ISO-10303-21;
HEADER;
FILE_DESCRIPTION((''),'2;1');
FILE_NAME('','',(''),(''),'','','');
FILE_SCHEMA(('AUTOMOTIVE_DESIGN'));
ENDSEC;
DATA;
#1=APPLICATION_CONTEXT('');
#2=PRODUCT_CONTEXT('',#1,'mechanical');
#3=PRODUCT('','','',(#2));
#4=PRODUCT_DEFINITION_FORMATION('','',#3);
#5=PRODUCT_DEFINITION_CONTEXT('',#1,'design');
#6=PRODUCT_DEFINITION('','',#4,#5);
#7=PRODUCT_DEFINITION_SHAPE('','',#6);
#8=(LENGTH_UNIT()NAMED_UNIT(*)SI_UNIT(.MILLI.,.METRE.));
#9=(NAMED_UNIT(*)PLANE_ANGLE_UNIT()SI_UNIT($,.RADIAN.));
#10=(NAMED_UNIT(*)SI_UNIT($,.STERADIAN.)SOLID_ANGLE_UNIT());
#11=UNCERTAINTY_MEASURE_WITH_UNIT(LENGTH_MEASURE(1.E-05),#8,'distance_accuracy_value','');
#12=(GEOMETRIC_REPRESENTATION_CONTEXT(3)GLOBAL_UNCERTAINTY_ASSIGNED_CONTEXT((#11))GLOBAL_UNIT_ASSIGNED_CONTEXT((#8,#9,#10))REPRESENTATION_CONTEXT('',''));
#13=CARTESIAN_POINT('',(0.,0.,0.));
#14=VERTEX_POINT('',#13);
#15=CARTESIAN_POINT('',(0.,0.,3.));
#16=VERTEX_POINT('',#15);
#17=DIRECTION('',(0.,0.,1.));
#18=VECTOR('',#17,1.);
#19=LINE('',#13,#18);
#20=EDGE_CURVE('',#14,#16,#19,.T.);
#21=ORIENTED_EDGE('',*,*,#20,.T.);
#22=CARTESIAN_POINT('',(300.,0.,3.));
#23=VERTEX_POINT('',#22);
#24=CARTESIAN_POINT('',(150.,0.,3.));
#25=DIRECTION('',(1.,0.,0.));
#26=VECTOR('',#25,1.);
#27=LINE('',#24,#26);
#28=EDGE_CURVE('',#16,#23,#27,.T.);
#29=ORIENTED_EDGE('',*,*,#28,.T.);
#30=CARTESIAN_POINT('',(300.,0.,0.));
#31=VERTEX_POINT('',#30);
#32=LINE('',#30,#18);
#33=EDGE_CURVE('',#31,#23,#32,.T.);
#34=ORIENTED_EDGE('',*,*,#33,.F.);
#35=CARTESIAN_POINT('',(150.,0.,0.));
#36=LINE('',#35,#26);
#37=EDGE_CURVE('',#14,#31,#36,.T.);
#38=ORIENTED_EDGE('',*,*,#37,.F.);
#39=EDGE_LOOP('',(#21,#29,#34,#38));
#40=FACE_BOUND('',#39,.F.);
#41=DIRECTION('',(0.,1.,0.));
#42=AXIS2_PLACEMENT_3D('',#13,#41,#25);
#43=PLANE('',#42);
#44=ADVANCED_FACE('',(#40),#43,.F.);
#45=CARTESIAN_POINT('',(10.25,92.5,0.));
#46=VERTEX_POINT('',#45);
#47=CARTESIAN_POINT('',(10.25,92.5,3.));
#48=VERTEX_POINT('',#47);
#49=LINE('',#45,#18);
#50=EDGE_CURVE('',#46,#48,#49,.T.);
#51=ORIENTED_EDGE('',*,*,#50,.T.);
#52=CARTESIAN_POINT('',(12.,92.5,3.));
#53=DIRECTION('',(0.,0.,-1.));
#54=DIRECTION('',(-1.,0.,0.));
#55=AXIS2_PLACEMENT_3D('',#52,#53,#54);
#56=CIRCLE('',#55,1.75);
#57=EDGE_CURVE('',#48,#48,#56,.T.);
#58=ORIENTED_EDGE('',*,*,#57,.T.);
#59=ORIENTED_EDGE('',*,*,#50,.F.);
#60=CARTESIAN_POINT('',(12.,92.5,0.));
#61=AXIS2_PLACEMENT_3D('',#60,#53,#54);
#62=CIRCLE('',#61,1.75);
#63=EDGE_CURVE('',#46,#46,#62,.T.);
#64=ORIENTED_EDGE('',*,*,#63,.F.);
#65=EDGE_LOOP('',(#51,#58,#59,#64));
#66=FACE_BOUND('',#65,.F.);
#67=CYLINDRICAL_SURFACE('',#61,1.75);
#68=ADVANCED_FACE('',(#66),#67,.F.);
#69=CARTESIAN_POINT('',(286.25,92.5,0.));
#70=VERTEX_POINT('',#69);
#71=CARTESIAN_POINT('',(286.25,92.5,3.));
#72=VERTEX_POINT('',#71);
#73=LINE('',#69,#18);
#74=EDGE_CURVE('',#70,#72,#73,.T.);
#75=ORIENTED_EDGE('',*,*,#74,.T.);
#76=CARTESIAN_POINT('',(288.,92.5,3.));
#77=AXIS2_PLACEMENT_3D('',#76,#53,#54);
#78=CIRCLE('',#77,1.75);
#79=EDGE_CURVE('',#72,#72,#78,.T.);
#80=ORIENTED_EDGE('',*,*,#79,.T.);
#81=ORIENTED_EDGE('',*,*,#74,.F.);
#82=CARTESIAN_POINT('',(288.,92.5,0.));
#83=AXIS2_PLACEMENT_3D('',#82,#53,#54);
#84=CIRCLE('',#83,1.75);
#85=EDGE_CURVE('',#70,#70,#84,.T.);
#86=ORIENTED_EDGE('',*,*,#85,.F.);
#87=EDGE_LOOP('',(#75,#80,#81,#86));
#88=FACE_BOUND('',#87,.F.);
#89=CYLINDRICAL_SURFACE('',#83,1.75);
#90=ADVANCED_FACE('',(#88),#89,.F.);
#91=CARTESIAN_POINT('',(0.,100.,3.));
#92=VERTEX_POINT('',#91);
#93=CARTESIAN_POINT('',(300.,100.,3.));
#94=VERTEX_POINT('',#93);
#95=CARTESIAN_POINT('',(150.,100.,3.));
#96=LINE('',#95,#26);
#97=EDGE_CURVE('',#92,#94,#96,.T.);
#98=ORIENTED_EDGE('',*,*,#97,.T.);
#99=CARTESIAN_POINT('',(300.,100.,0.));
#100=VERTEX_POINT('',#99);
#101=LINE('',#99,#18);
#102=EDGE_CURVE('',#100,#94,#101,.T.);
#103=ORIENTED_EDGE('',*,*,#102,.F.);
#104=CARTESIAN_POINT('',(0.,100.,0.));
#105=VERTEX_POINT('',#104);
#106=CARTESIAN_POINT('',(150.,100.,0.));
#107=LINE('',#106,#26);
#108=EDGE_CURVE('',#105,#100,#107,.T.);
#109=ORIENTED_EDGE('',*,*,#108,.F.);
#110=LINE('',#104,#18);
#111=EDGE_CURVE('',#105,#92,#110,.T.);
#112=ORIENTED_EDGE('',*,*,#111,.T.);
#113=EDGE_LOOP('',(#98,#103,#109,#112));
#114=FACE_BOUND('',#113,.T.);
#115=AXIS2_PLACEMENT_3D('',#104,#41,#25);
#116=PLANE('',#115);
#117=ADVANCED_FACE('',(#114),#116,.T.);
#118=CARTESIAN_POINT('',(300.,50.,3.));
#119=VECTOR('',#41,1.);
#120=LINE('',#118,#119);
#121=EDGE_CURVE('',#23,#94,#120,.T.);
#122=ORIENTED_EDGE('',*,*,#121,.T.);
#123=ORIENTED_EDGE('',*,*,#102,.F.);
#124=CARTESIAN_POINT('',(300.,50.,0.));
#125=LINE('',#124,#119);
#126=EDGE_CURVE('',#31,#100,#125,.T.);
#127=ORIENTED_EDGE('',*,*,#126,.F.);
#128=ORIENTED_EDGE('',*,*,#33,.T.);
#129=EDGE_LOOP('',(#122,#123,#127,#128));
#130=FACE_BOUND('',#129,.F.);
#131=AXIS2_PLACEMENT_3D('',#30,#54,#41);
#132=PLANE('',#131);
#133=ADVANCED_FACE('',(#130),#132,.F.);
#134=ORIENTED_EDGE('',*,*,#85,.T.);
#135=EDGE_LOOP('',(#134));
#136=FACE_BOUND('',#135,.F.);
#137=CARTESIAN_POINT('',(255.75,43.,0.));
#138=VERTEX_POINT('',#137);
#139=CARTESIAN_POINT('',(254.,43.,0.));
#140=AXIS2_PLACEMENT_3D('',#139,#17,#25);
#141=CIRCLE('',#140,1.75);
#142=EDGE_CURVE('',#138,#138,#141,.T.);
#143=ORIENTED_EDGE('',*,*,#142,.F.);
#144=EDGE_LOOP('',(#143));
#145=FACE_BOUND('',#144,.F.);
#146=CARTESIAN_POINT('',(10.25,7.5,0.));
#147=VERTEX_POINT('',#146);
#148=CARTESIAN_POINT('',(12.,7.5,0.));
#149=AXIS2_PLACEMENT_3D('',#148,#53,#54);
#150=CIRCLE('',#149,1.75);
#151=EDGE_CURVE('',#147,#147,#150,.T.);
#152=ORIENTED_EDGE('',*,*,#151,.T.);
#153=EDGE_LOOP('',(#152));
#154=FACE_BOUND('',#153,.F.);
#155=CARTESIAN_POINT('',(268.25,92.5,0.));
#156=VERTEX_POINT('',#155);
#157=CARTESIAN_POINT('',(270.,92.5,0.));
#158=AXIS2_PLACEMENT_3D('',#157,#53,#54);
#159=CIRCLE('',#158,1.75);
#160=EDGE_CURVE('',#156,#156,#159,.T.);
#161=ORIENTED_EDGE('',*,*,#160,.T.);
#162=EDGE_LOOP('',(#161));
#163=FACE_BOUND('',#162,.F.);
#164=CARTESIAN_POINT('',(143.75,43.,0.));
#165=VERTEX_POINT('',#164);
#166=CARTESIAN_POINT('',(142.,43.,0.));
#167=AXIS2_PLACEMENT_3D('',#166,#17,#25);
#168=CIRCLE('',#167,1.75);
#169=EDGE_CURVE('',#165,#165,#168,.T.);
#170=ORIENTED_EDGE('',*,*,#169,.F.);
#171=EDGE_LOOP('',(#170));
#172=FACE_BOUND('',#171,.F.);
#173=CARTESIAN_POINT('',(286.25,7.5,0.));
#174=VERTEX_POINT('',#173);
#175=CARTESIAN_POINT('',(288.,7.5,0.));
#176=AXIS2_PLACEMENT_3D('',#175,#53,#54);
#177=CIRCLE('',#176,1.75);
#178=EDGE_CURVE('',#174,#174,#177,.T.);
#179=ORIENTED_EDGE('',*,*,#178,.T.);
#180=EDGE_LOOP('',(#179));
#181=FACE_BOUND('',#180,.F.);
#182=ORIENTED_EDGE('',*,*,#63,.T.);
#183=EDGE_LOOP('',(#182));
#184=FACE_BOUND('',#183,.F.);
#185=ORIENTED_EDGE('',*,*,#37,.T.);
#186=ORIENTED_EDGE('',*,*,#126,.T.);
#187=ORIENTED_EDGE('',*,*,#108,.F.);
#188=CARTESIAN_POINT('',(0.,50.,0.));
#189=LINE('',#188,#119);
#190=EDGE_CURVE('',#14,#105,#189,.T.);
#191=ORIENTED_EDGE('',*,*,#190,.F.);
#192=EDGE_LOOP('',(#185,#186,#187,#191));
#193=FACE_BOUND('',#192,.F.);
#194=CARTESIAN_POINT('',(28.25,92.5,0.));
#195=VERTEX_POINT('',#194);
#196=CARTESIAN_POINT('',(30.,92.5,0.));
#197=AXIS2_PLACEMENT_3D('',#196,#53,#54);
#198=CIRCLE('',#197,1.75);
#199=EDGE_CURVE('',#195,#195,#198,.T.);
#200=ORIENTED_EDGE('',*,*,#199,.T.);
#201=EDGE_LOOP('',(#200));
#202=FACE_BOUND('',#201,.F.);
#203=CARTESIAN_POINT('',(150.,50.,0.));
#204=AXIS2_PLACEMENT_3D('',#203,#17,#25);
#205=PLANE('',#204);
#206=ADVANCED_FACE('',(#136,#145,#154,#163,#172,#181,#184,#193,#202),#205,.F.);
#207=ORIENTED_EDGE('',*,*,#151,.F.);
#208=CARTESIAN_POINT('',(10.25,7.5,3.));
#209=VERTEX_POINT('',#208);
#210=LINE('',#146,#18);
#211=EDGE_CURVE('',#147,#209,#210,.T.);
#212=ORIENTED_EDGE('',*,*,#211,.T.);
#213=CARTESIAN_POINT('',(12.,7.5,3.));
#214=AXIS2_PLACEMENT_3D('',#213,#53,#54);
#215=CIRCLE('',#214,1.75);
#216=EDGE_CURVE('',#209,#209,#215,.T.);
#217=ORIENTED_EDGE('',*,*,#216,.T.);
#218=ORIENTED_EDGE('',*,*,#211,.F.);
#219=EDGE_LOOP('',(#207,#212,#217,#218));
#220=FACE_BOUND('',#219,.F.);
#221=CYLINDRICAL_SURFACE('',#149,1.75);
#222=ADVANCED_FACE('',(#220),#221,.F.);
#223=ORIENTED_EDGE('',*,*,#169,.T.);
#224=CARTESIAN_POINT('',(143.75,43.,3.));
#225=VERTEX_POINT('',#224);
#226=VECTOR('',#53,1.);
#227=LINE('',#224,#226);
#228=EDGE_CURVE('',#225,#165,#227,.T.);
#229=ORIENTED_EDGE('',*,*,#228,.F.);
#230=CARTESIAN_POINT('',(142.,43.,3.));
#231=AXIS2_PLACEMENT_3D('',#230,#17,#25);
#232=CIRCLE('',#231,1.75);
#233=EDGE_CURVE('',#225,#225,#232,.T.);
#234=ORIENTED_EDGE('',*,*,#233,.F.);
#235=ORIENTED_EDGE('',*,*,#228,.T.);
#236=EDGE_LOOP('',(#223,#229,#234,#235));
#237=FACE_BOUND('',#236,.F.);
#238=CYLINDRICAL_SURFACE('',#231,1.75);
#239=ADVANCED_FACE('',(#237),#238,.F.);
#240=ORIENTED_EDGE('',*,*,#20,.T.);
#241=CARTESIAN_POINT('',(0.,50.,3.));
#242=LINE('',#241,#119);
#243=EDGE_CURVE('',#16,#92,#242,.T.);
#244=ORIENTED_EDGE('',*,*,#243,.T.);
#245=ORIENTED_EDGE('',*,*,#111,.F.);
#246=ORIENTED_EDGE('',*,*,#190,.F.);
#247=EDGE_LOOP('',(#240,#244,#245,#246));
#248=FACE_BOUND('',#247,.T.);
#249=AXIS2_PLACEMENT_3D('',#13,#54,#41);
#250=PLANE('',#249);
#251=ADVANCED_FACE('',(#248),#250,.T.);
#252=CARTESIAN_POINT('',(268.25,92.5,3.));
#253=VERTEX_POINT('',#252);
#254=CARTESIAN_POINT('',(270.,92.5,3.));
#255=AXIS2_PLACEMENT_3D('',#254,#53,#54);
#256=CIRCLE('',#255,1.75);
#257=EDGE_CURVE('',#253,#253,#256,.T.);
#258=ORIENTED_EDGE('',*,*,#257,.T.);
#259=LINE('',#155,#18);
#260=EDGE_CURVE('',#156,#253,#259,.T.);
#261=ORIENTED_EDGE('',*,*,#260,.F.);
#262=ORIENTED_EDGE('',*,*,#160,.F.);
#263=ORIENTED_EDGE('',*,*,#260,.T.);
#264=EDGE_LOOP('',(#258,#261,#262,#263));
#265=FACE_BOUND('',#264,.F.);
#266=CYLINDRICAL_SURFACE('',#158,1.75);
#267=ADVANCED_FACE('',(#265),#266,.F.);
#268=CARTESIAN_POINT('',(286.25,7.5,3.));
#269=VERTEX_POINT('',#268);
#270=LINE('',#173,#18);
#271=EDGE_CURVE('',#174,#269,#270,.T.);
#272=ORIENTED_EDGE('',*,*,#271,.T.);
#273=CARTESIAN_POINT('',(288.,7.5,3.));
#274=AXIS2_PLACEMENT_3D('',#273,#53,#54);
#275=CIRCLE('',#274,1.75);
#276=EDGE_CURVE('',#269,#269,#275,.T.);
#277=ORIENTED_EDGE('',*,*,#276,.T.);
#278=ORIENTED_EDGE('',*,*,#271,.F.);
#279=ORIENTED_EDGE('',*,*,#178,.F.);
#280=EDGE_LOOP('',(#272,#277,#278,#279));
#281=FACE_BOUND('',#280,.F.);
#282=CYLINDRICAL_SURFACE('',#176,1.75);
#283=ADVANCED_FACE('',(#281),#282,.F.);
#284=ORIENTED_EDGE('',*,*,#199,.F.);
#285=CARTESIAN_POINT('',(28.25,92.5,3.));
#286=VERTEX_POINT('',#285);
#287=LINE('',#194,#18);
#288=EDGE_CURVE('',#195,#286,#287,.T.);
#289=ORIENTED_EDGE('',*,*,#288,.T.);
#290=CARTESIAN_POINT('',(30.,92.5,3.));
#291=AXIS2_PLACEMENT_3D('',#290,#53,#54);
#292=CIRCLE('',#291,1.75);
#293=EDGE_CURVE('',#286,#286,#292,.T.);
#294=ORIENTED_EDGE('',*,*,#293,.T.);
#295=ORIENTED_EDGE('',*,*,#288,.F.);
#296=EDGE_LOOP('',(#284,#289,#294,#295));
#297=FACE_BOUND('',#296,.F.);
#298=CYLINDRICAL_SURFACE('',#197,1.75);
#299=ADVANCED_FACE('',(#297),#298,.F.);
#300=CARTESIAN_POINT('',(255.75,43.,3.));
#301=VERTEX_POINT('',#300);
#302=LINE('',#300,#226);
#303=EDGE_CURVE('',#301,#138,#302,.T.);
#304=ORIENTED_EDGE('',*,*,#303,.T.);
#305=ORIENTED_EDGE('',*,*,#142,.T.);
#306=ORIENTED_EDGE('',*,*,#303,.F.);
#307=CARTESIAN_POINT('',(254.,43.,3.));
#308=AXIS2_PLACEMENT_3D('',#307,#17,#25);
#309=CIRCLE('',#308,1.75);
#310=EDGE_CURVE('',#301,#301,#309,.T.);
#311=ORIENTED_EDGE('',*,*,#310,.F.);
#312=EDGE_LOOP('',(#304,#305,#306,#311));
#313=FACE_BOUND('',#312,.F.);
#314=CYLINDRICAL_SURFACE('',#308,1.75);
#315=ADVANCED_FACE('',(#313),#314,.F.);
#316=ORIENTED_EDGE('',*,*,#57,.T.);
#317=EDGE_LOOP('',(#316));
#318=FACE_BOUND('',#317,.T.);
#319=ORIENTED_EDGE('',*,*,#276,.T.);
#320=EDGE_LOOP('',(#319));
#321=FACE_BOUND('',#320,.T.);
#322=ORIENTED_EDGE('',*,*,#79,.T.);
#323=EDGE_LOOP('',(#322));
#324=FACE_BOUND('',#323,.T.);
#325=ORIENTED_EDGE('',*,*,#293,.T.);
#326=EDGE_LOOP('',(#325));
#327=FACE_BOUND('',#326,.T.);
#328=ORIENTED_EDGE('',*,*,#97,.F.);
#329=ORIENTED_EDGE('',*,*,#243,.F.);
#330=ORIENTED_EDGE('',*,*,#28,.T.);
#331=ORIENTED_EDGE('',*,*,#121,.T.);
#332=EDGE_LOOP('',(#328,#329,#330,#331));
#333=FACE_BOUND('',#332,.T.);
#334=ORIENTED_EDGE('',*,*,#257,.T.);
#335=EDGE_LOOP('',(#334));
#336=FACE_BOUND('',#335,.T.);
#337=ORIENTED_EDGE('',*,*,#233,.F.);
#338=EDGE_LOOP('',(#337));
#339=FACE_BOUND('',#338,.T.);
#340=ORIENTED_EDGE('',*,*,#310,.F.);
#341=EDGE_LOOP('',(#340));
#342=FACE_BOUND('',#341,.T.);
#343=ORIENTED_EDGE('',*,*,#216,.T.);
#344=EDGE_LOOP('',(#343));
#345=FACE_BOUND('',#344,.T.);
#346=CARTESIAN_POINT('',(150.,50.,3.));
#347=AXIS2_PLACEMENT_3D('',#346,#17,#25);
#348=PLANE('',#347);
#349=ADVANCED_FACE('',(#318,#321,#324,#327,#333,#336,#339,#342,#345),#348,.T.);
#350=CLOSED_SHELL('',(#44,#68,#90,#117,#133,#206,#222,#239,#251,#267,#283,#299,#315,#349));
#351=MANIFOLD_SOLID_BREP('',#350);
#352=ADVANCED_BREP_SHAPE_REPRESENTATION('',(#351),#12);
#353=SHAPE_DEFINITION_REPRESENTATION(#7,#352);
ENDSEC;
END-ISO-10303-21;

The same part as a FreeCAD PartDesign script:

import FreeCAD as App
import Part
import Sketcher
from FreeCAD import Vector

doc = App.newDocument("Part")
body = doc.addObject("PartDesign::Body", "Body")

# Sketch on XY plane
sketch1 = body.newObject("Sketcher::SketchObject", "Sketch")
sketch1.AttachmentSupport = (doc.getObject("XY_Plane"), [""])
sketch1.MapMode = "FlatFace"
sketch1.addGeometry(Part.LineSegment(Vector(0, 100, 0), Vector(0, 0, 0)), False)
sketch1.addGeometry(Part.LineSegment(Vector(0, 0, 0), Vector(300, 0, 0)), False)
sketch1.addGeometry(Part.LineSegment(Vector(300, 0, 0), Vector(300, 100, 0)), False)
sketch1.addGeometry(Part.LineSegment(Vector(300, 100, 0), Vector(0, 100, 0)), False)
sketch1.addConstraint(Sketcher.Constraint("Coincident", 0, 2, 1, 1))
sketch1.addConstraint(Sketcher.Constraint("Coincident", 1, 2, 2, 1))
sketch1.addConstraint(Sketcher.Constraint("Coincident", 2, 2, 3, 1))
sketch1.addConstraint(Sketcher.Constraint("Coincident", 3, 2, 0, 1))
sketch1.addConstraint(Sketcher.Constraint("Vertical", 0))
sketch1.addConstraint(Sketcher.Constraint("Horizontal", 1))
sketch1.addConstraint(Sketcher.Constraint("Vertical", 2))
sketch1.addConstraint(Sketcher.Constraint("Horizontal", 3))
sketch1.addConstraint(Sketcher.Constraint("Coincident", 0, 2, -1, 1))
sketch1.addConstraint(Sketcher.Constraint("DistanceX", 1, 1, 1, 2, 300.0))
sketch1.addConstraint(Sketcher.Constraint("DistanceY", 0, 2, 0, 1, 100.0))
pad1 = body.newObject("PartDesign::Pad", "Pad")
pad1.Profile = sketch1
pad1.Length = 3

# Sketch on XY plane
sketch2 = body.newObject("Sketcher::SketchObject", "Sketch001")
sketch2.AttachmentSupport = (doc.getObject("XY_Plane"), [""])
sketch2.MapMode = "FlatFace"
sketch2.AttachmentOffset = App.Placement(Vector(0, 0, 3), App.Rotation())
sketch2.addGeometry(Part.Circle(Vector(142, 43, 0), Vector(0, 0, 1), 1.75), False)
sketch2.addGeometry(Part.Circle(Vector(254, 43, 0), Vector(0, 0, 1), 1.75), False)
sketch2.addConstraint(Sketcher.Constraint("Equal", 0, 1))
sketch2.addConstraint(Sketcher.Constraint("Horizontal", 0, 3, 1, 3))
sketch2.addConstraint(Sketcher.Constraint("Diameter", 0, 3.5))
sketch2.addConstraint(Sketcher.Constraint("DistanceX", -1, 1, 0, 3, 142.0))
sketch2.addConstraint(Sketcher.Constraint("DistanceY", -1, 1, 0, 3, 43.0))
sketch2.addConstraint(Sketcher.Constraint("DistanceX", -1, 1, 1, 3, 254.0))
pocket1 = body.newObject("PartDesign::Pocket", "Pocket")
pocket1.Profile = sketch2
pocket1.Length = 30

# Sketch on XY plane
sketch3 = body.newObject("Sketcher::SketchObject", "Sketch002")
sketch3.AttachmentSupport = (doc.getObject("XY_Plane"), [""])
sketch3.MapMode = "FlatFace"
sketch3.addGeometry(Part.Circle(Vector(288, 92.5, 0), Vector(0, 0, 1), 1.75), False)
sketch3.addGeometry(Part.Circle(Vector(270, 92.5, 0), Vector(0, 0, 1), 1.75), False)
sketch3.addGeometry(Part.Circle(Vector(288, 7.5, 0), Vector(0, 0, 1), 1.75), False)
sketch3.addGeometry(Part.Circle(Vector(12, 7.5, 0), Vector(0, 0, 1), 1.75), False)
sketch3.addGeometry(Part.Circle(Vector(12, 92.5, 0), Vector(0, 0, 1), 1.75), False)
sketch3.addGeometry(Part.Circle(Vector(30, 92.5, 0), Vector(0, 0, 1), 1.75), False)
sketch3.addConstraint(Sketcher.Constraint("Equal", 0, 1))
sketch3.addConstraint(Sketcher.Constraint("Equal", 1, 2))
sketch3.addConstraint(Sketcher.Constraint("Equal", 2, 3))
sketch3.addConstraint(Sketcher.Constraint("Equal", 3, 4))
sketch3.addConstraint(Sketcher.Constraint("Equal", 4, 5))
sketch3.addConstraint(Sketcher.Constraint("Horizontal", 0, 3, 1, 3))
sketch3.addConstraint(Sketcher.Constraint("Horizontal", 2, 3, 3, 3))
sketch3.addConstraint(Sketcher.Constraint("Horizontal", 1, 3, 4, 3))
sketch3.addConstraint(Sketcher.Constraint("Horizontal", 4, 3, 5, 3))
sketch3.addConstraint(Sketcher.Constraint("Vertical", 0, 3, 2, 3))
sketch3.addConstraint(Sketcher.Constraint("Vertical", 3, 3, 4, 3))
sketch3.addConstraint(Sketcher.Constraint("Diameter", 0, 3.5))
sketch3.addConstraint(Sketcher.Constraint("DistanceX", -1, 1, 0, 3, 288.0))
sketch3.addConstraint(Sketcher.Constraint("DistanceX", -1, 1, 1, 3, 270.0))
sketch3.addConstraint(Sketcher.Constraint("DistanceX", -1, 1, 3, 3, 12.0))
sketch3.addConstraint(Sketcher.Constraint("DistanceX", -1, 1, 5, 3, 30.0))
sketch3.addConstraint(Sketcher.Constraint("DistanceY", 2, 3, 0, 3, 85.0))
sketch3.addConstraint(Sketcher.Constraint("DistanceY", -1, 1, 0, 3, 92.5))
pocket2 = body.newObject("PartDesign::Pocket", "Pocket001")
pocket2.Profile = sketch3
pocket2.Length = 10
pocket2.Reversed = True

doc.recompute()
